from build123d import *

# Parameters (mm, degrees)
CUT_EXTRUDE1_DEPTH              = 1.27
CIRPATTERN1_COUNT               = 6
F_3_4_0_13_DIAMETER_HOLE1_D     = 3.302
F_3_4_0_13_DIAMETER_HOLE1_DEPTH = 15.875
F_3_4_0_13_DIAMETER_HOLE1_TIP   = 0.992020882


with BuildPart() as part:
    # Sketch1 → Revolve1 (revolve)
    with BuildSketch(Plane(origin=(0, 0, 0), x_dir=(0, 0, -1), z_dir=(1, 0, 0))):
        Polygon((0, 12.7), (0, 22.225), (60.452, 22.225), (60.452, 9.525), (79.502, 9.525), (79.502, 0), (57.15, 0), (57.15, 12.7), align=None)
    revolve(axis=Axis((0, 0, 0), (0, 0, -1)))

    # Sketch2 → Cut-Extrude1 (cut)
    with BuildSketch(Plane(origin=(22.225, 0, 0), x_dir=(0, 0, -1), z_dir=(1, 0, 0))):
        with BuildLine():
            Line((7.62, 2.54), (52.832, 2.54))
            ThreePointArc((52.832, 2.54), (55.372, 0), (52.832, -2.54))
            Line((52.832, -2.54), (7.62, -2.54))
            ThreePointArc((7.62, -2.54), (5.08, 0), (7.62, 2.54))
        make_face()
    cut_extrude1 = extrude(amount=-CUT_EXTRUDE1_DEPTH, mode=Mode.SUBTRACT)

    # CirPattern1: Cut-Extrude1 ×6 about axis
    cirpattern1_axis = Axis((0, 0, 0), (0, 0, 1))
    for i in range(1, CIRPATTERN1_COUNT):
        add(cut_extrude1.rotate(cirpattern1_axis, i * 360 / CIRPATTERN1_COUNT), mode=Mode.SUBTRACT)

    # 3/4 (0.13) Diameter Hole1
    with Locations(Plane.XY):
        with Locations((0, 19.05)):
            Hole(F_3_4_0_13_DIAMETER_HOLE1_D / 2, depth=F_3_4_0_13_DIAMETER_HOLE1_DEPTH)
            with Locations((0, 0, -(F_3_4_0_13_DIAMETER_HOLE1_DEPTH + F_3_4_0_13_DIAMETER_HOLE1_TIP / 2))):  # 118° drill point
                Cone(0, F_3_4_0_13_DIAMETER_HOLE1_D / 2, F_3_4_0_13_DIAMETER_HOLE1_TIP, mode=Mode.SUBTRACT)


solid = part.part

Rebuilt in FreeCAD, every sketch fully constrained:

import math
import FreeCAD as App
import Part
import Sketcher
from FreeCAD import Vector
Q = App.Units.Quantity


def add_polygon(sketch, points):
    """Adds a closed chain of lines whose ends are joined by coincident constraints."""
    first, n = sketch.GeometryCount, len(points)
    for a, b in zip(points, points[1:] + points[:1]):
        sketch.addGeometry(Part.LineSegment(App.Vector(*a, 0), App.Vector(*b, 0)), False)
    for i in range(n):
        sketch.addConstraint(Sketcher.Constraint("Coincident", first + i, 2, first + (i + 1) % n, 1))

doc = App.newDocument("Part")
body = doc.addObject("PartDesign::Body", "Body")

# Sketch on YZ plane
sketch1 = body.newObject("Sketcher::SketchObject", "Sketch")
sketch1.AttachmentSupport = (doc.getObject("YZ_Plane"), [""])
sketch1.MapMode = "FlatFace"
add_polygon(sketch1, [(22.225, 0), (12.7, 0), (12.7, -57.15), (0, -57.15), (0, -79.502), (9.525, -79.502), (9.525, -60.452), (22.225, -60.452)])  # lines 0-7
sketch1.addConstraint(Sketcher.Constraint("Horizontal", 0))
sketch1.addConstraint(Sketcher.Constraint("Vertical", 1))
sketch1.addConstraint(Sketcher.Constraint("Horizontal", 2))
sketch1.addConstraint(Sketcher.Constraint("Vertical", 3))
sketch1.addConstraint(Sketcher.Constraint("Horizontal", 4))
sketch1.addConstraint(Sketcher.Constraint("Vertical", 5))
sketch1.addConstraint(Sketcher.Constraint("Horizontal", 6))
sketch1.addConstraint(Sketcher.Constraint("Vertical", 7))
sketch1.addConstraint(Sketcher.Constraint("PointOnObject", 0, 2, -1))
sketch1.addConstraint(Sketcher.Constraint("PointOnObject", 2, 2, -2))
sketch1.addConstraint(Sketcher.Constraint("Equal", 0, 4))
sketch1.addConstraint(Sketcher.Constraint("DistanceX", 2, 2, 2, 1, Q("0.5 in")))
sketch1.addConstraint(Sketcher.Constraint("DistanceY", 1, 2, 1, 1, Q("2.25 in")))
sketch1.addConstraint(Sketcher.Constraint("DistanceY", 3, 2, 3, 1, Q("0.88 in")))
sketch1.addConstraint(Sketcher.Constraint("DistanceY", 5, 1, 5, 2, Q("0.75 in")))
sketch1.addConstraint(Sketcher.Constraint("DistanceX", 0, 2, 0, 1, Q("0.375 in")))
revolution = body.newObject("PartDesign::Revolution", "Revolution")
revolution.Profile = sketch1
revolution.ReferenceAxis = (sketch1, ["V_Axis"])
revolution.Angle = 360

# Sketch on YZ plane
sketch2 = body.newObject("Sketcher::SketchObject", "Sketch001")
sketch2.AttachmentSupport = (doc.getObject("YZ_Plane"), [""])
sketch2.MapMode = "FlatFace"
sketch2.AttachmentOffset = App.Placement(Vector(0, 0, 0.875 * 25.4), App.Rotation())
sketch2.addGeometry(Part.LineSegment(Vector(2.54, -52.832, 0), Vector(2.54, -7.62, 0)), False)
sketch2.addGeometry(Part.ArcOfCircle(Part.Circle(Vector(0, -7.62, 0), Vector(0, 0, 1), 2.54), math.radians(0), math.radians(180)), False)
sketch2.addGeometry(Part.LineSegment(Vector(-2.54, -7.62, 0), Vector(-2.54, -52.832, 0)), False)
sketch2.addGeometry(Part.ArcOfCircle(Part.Circle(Vector(0, -52.832, 0), Vector(0, 0, 1), 2.54), math.radians(180), math.radians(360)), False)
sketch2.addConstraint(Sketcher.Constraint("Tangent", 0, 2, 1, 1))
sketch2.addConstraint(Sketcher.Constraint("Tangent", 1, 2, 2, 1))
sketch2.addConstraint(Sketcher.Constraint("Tangent", 2, 2, 3, 1))
sketch2.addConstraint(Sketcher.Constraint("Tangent", 3, 2, 0, 1))
sketch2.addConstraint(Sketcher.Constraint("Vertical", 0))
sketch2.addConstraint(Sketcher.Constraint("Vertical", 2))
sketch2.addConstraint(Sketcher.Constraint("PointOnObject", 1, 3, -2))
sketch2.addConstraint(Sketcher.Constraint("Radius", 1, Q("0.1 in")))
sketch2.addConstraint(Sketcher.Constraint("DistanceY", 0, 1, 0, 2, Q("1.78 in")))
sketch2.addConstraint(Sketcher.Constraint("DistanceY", 1, 3, -1, 1, Q("0.3 in")))
pocket1 = body.newObject("PartDesign::Pocket", "Pocket")
pocket1.Profile = sketch2
pocket1.Length = Q("0.05 in")
doc.recompute()

polarpattern = body.newObject("PartDesign::PolarPattern", "PolarPattern")
polarpattern.Originals = [pocket1]
polarpattern.Axis = (doc.getObject("Z_Axis"), [""])
polarpattern.Angle = 360
polarpattern.Occurrences = 6
body.Tip = polarpattern

# Sketch on XY plane
sketch3 = body.newObject("Sketcher::SketchObject", "Sketch002")
sketch3.AttachmentSupport = (doc.getObject("XY_Plane"), [""])
sketch3.MapMode = "FlatFace"
sketch3.addGeometry(Part.Circle(Vector(0, 19.05, 0), Vector(0, 0, 1), 1.651), False)
sketch3.addConstraint(Sketcher.Constraint("PointOnObject", 0, 3, -2))
sketch3.addConstraint(Sketcher.Constraint("Diameter", 0, Q("0.13 in")))
sketch3.addConstraint(Sketcher.Constraint("DistanceY", -1, 1, 0, 3, Q("0.75 in")))
doc.recompute()
hole = body.newObject("PartDesign::Hole", "Hole")
hole.Profile = sketch3
hole.ThreadType = "None"
hole.Diameter = Q("0.13 in")
hole.DepthType = "Dimension"
hole.Depth = Q("0.625 in")
hole.DrillPoint = "Angled"
hole.DrillPointAngle = 118

doc.recompute()
